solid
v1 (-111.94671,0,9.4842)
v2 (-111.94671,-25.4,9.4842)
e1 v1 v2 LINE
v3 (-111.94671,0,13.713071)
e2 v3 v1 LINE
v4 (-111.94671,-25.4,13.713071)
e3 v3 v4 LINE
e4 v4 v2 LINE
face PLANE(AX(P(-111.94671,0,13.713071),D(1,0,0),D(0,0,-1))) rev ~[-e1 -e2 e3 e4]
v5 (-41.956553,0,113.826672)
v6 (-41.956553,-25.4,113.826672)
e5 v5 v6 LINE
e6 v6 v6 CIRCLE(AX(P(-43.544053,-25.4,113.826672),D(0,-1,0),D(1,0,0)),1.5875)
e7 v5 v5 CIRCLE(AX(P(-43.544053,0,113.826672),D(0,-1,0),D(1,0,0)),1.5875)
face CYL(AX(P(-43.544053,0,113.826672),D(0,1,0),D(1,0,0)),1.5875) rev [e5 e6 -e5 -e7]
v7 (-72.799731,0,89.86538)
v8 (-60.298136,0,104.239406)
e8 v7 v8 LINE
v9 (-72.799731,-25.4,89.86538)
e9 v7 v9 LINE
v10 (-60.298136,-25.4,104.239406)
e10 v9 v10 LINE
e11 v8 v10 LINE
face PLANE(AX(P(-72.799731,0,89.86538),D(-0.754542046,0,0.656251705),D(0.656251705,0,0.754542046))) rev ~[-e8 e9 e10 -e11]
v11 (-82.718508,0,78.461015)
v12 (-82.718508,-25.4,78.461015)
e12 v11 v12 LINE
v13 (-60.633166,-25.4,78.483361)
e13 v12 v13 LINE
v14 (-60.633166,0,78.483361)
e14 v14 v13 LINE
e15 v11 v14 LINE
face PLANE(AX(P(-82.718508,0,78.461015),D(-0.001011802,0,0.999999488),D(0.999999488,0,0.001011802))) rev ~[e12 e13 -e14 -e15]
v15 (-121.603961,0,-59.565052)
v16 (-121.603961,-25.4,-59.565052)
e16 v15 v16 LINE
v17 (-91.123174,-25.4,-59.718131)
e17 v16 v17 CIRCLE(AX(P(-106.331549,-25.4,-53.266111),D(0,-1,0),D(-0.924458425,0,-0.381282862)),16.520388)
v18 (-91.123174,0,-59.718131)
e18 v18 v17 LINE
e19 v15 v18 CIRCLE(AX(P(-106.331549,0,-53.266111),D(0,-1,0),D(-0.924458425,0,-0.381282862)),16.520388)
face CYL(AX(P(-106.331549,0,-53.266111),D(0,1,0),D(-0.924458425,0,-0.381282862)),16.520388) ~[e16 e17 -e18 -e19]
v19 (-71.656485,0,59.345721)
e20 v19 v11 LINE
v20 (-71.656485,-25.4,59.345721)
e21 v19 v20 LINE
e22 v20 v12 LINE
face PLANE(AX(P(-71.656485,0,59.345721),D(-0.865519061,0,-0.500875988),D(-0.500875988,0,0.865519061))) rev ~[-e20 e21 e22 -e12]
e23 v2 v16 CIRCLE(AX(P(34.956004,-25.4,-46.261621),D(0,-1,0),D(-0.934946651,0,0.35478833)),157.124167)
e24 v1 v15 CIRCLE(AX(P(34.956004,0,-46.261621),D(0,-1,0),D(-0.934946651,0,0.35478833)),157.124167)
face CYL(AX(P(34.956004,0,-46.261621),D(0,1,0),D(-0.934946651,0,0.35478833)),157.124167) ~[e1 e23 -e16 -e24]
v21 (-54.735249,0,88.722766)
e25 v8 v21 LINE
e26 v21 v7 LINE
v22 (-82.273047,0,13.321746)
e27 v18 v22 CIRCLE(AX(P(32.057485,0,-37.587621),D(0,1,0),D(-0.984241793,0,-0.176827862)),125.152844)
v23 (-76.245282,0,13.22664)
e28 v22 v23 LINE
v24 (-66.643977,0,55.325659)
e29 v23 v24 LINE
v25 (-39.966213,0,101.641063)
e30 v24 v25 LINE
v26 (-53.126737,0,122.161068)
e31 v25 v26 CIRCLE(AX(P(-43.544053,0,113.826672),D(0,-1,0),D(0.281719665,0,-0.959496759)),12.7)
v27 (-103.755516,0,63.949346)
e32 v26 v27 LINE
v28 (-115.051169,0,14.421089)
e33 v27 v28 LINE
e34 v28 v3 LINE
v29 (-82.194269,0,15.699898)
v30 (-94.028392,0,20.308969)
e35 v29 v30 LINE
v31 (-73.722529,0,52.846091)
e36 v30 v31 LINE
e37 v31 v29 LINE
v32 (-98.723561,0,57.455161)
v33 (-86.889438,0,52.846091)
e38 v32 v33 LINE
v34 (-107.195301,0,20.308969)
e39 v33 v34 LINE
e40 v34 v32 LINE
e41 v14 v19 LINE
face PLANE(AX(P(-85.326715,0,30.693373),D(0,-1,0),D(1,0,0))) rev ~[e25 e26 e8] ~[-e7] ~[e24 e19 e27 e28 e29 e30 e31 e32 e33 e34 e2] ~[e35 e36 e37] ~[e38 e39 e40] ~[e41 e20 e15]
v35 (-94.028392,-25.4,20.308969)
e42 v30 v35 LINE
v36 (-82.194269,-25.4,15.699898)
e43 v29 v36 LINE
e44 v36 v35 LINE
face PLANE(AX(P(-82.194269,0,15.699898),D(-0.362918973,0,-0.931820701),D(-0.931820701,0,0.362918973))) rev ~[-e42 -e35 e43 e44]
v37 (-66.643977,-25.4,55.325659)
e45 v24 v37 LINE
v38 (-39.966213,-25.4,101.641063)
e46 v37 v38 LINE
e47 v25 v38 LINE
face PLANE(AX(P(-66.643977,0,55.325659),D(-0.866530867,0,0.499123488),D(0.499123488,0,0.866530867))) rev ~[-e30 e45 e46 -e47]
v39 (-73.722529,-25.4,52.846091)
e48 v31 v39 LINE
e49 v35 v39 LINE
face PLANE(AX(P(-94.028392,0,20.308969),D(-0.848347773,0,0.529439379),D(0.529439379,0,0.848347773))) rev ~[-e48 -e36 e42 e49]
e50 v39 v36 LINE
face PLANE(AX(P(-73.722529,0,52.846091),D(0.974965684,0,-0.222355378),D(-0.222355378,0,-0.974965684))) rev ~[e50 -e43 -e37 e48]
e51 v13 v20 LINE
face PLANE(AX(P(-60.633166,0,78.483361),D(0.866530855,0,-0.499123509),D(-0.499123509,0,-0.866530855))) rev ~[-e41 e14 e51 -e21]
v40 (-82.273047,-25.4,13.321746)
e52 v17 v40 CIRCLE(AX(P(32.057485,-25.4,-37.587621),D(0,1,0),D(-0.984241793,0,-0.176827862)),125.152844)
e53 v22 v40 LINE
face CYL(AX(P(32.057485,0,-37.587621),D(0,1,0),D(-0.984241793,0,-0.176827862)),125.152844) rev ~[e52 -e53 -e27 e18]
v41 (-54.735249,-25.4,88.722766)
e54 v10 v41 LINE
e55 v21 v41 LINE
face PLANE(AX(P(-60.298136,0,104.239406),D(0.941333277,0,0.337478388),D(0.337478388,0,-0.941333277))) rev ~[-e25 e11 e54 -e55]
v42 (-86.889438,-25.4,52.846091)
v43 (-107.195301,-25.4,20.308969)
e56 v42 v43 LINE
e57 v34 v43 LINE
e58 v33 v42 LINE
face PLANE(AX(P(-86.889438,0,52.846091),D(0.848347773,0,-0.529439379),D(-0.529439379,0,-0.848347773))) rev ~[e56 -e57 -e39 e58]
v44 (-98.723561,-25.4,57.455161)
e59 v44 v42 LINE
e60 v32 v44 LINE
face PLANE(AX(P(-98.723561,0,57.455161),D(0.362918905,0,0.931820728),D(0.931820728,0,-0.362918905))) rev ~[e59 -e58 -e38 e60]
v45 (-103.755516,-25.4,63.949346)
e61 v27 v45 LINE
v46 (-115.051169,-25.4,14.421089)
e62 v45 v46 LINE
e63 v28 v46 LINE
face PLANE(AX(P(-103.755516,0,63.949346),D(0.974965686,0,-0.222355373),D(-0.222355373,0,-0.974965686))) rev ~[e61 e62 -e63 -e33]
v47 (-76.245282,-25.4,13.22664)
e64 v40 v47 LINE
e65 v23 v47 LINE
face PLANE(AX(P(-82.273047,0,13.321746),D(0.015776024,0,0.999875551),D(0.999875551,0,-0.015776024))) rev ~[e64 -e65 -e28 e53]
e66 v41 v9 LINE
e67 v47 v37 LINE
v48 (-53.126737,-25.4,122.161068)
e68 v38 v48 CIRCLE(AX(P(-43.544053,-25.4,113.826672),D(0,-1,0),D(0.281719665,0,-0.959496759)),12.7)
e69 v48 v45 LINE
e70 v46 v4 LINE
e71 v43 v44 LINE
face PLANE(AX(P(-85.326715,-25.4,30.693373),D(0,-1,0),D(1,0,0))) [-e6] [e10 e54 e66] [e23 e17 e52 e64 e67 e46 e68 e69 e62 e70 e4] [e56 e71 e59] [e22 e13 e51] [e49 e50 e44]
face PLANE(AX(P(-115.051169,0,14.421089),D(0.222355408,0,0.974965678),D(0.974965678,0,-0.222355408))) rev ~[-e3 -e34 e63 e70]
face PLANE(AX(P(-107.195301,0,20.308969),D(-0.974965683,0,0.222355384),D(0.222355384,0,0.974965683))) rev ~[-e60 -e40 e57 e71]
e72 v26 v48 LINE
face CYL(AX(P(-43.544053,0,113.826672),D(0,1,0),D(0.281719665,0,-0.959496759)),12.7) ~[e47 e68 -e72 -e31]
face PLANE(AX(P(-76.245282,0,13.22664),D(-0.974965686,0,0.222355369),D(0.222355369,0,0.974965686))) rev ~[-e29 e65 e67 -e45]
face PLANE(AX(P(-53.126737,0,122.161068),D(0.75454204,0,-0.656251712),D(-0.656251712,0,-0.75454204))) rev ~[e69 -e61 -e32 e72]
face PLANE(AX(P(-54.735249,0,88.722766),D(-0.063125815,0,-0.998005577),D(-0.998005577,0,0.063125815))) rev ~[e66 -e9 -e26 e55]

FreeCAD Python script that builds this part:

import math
import FreeCAD as App
import Part
import Sketcher
from FreeCAD import Vector
Q = App.Units.Quantity

doc = App.newDocument("Part")
body = doc.addObject("PartDesign::Body", "Body")

sketch1 = body.newObject("Sketcher::SketchObject", "Sketch")
sketch1.AttachmentSupport = (doc.getObject("XZ_Plane"), [""])
sketch1.MapMode = "FlatFace"
sketch1.addGeometry(Part.LineSegment(Vector(-66.643977, 55.325659, 0), Vector(-39.966213, 101.641063, 0)), False)
sketch1.addGeometry(Part.ArcOfCircle(Part.Circle(Vector(-43.544053, 113.826672, 0), Vector(0, 0, 1), 12.7), math.radians(-73.637133), math.radians(138.985373)), False)
sketch1.addGeometry(Part.LineSegment(Vector(-53.126737, 122.161068, 0), Vector(-103.755516, 63.949346, 0)), False)
sketch1.addGeometry(Part.LineSegment(Vector(-103.755516, 63.949346, 0), Vector(-115.051169, 14.421089, 0)), False)
sketch1.addGeometry(Part.LineSegment(Vector(-115.051169, 14.421089, 0), Vector(-111.94671, 13.713071, 0)), False)
sketch1.addGeometry(Part.LineSegment(Vector(-111.94671, 13.713071, 0), Vector(-111.94671, 9.4842, 0)), False)
sketch1.addGeometry(Part.ArcOfCircle(Part.Circle(Vector(34.956004, -46.261621, 0), Vector(0, 0, 1), 157.124167), math.radians(159.219528), math.radians(184.856949)), False)
sketch1.addGeometry(Part.ArcOfCircle(Part.Circle(Vector(-106.331549, -53.266111, 0), Vector(0, 0, 1), 16.520388), math.radians(-157.586831), math.radians(-22.98866)), False)
sketch1.addGeometry(Part.ArcOfCircle(Part.Circle(Vector(32.057485, -37.587621, 0), Vector(0, 0, 1), 125.152844), math.radians(155.997434), math.radians(190.185046)), False)
sketch1.addGeometry(Part.LineSegment(Vector(-82.273047, 13.321746, 0), Vector(-76.245282, 13.22664, 0)), False)
sketch1.addGeometry(Part.LineSegment(Vector(-76.245282, 13.22664, 0), Vector(-66.643977, 55.325659, 0)), False)
sketch1.addGeometry(Part.LineSegment(Vector(-86.889438, 52.846091, 0), Vector(-107.195301, 20.308969, 0)), False)
sketch1.addGeometry(Part.LineSegment(Vector(-107.195301, 20.308969, 0), Vector(-98.723561, 57.455161, 0)), False)
sketch1.addGeometry(Part.LineSegment(Vector(-98.723561, 57.455161, 0), Vector(-86.889438, 52.846091, 0)), False)
sketch1.addGeometry(Part.LineSegment(Vector(-82.194269, 15.699898, 0), Vector(-94.028392, 20.308969, 0)), False)
sketch1.addGeometry(Part.LineSegment(Vector(-94.028392, 20.308969, 0), Vector(-73.722529, 52.846091, 0)), False)
sketch1.addGeometry(Part.LineSegment(Vector(-73.722529, 52.846091, 0), Vector(-82.194269, 15.699898, 0)), False)
sketch1.addGeometry(Part.LineSegment(Vector(-71.656485, 59.345721, 0), Vector(-82.718508, 78.461015, 0)), False)
sketch1.addGeometry(Part.LineSegment(Vector(-82.718508, 78.461015, 0), Vector(-60.633166, 78.483361, 0)), False)
sketch1.addGeometry(Part.LineSegment(Vector(-60.633166, 78.483361, 0), Vector(-71.656485, 59.345721, 0)), False)
sketch1.addGeometry(Part.LineSegment(Vector(-54.735249, 88.722766, 0), Vector(-72.799731, 89.86538, 0)), False)
sketch1.addGeometry(Part.LineSegment(Vector(-72.799731, 89.86538, 0), Vector(-60.298136, 104.239406, 0)), False)
sketch1.addGeometry(Part.LineSegment(Vector(-60.298136, 104.239406, 0), Vector(-54.735249, 88.722766, 0)), False)
sketch1.addGeometry(Part.Circle(Vector(-43.544053, 113.826672, 0), Vector(0, 0, 1), 1.5875), False)
sketch1.addConstraint(Sketcher.Constraint("Coincident", 0, 2, 1, 1))
sketch1.addConstraint(Sketcher.Constraint("Tangent", 1, 2, 2, 1))
sketch1.addConstraint(Sketcher.Constraint("Coincident", 2, 2, 3, 1))
sketch1.addConstraint(Sketcher.Constraint("Coincident", 3, 2, 4, 1))
sketch1.addConstraint(Sketcher.Constraint("Coincident", 4, 2, 5, 1))
sketch1.addConstraint(Sketcher.Constraint("Coincident", 5, 2, 6, 1))
sketch1.addConstraint(Sketcher.Constraint("Coincident", 6, 2, 7, 1))
sketch1.addConstraint(Sketcher.Constraint("Coincident", 7, 2, 8, 2))
sketch1.addConstraint(Sketcher.Constraint("Coincident", 8, 1, 9, 1))
sketch1.addConstraint(Sketcher.Constraint("Coincident", 9, 2, 10, 1))
sketch1.addConstraint(Sketcher.Constraint("Coincident", 10, 2, 0, 1))
sketch1.addConstraint(Sketcher.Constraint("Coincident", 11, 2, 12, 1))
sketch1.addConstraint(Sketcher.Constraint("Coincident", 12, 2, 13, 1))
sketch1.addConstraint(Sketcher.Constraint("Coincident", 13, 2, 11, 1))
sketch1.addConstraint(Sketcher.Constraint("Coincident", 14, 2, 15, 1))
sketch1.addConstraint(Sketcher.Constraint("Coincident", 15, 2, 16, 1))
sketch1.addConstraint(Sketcher.Constraint("Coincident", 16, 2, 14, 1))
sketch1.addConstraint(Sketcher.Constraint("Coincident", 17, 2, 18, 1))
sketch1.addConstraint(Sketcher.Constraint("Coincident", 18, 2, 19, 1))
sketch1.addConstraint(Sketcher.Constraint("Coincident", 19, 2, 17, 1))
sketch1.addConstraint(Sketcher.Constraint("Coincident", 20, 2, 21, 1))
sketch1.addConstraint(Sketcher.Constraint("Coincident", 21, 2, 22, 1))
sketch1.addConstraint(Sketcher.Constraint("Coincident", 22, 2, 20, 1))
sketch1.addConstraint(Sketcher.Constraint("Vertical", 5))
sketch1.addConstraint(Sketcher.Constraint("Coincident", 23, 3, 1, 3))
sketch1.addConstraint(Sketcher.Constraint("Perpendicular", 3, 4))
sketch1.addConstraint(Sketcher.Constraint("Perpendicular", 4, 10))
sketch1.addConstraint(Sketcher.Constraint("Parallel", 10, 12))
sketch1.addConstraint(Sketcher.Constraint("Parallel", 13, 14))
sketch1.addConstraint(Sketcher.Constraint("Parallel", 11, 15))
sketch1.addConstraint(Sketcher.Constraint("Parallel", 12, 16))
sketch1.addConstraint(Sketcher.Constraint("Parallel", 0, 19))
sketch1.addConstraint(Sketcher.Constraint("Parallel", 2, 21))
sketch1.addConstraint(Sketcher.Constraint("Horizontal", 11, 2, 14, 2))
sketch1.addConstraint(Sketcher.Constraint("Horizontal", 13, 2, 15, 2))
sketch1.addConstraint(Sketcher.Constraint("Equal", 17, 18))
sketch1.addConstraint(Sketcher.Constraint("Equal", 18, 19))
sketch1.addConstraint(Sketcher.Constraint("Radius", 1, Q("0.5 in")))
sketch1.addConstraint(Sketcher.Constraint("Distance", 3, Q("2 in")))
sketch1.addConstraint(Sketcher.Constraint("Diameter", 23, Q("0.125 in")))
sketch1.addConstraint(Sketcher.Constraint("Distance", 10, Q("1.7 in")))
sketch1.addConstraint(Sketcher.Constraint("Distance", 12, Q("1.5 in")))
sketch1.addConstraint(Sketcher.Constraint("Distance", 13, Q("0.5 in")))
sketch1.addConstraint(Sketcher.Constraint("Distance", 21, Q("0.75 in")))
sketch1.addConstraint(Sketcher.Constraint("Radius", 7, 16.520388))
sketch1.addConstraint(Sketcher.Constraint("Radius", 6, 157.124167))
sketch1.addConstraint(Sketcher.Constraint("Radius", 8, 125.152844))
sketch1.addConstraint(Sketcher.Constraint("DistanceY", 2, 2, 1, 2, Q("2.2918001 in")))
sketch1.addConstraint(Sketcher.Constraint("DistanceX", 20, 2, 22, 2, Q("0.7112001 in")))
sketch1.addConstraint(Sketcher.Constraint("DistanceY", 5, 2, 5, 1, 4.228871))
sketch1.addConstraint(Sketcher.Constraint("DistanceY", -1, 1, 5, 2, 9.4842))
sketch1.addConstraint(Sketcher.Constraint("DistanceX", 11, 2, -1, 1, 107.195301))
sketch1.addConstraint(Sketcher.Constraint("DistanceY", 6, 3, 8, 3, 8.674))
sketch1.addConstraint(Sketcher.Constraint("DistanceX", 0, 2, 8, 3, 72.023698))
sketch1.addConstraint(Sketcher.Constraint("DistanceY", 7, 3, 3, 2, 67.6872))
sketch1.addConstraint(Sketcher.Constraint("DistanceY", 4, 2, 1, 3, 100.113601))
sketch1.addConstraint(Sketcher.Constraint("DistanceY", 6, 2, 2, 2, 123.514398))
sketch1.addConstraint(Sketcher.Constraint("DistanceY", 7, 2, 4, 2, 73.431202))
sketch1.addConstraint(Sketcher.Constraint("DistanceY", 8, 1, 2, 2, 50.6276))
sketch1.addConstraint(Sketcher.Constraint("DistanceX", 7, 3, 8, 1, 24.058502))
sketch1.addConstraint(Sketcher.Constraint("DistanceY", 4, 2, 11, 2, 6.595898))
sketch1.addConstraint(Sketcher.Constraint("DistanceY", 10, 2, 12, 2, 2.129502))
sketch1.addConstraint(Sketcher.Constraint("DistanceX", 21, 2, 1, 2, 7.171399))
sketch1.addConstraint(Sketcher.Constraint("Distance", 11, 38.353518))
sketch1.addConstraint(Sketcher.Constraint("DistanceY", 6, 3, -1, 1, 46.261621))
sketch1.addConstraint(Sketcher.Constraint("DistanceX", 7, 3, -1, 1, 106.331549))
sketch1.addConstraint(Sketcher.Constraint("DistanceY", 7, 3, -1, 1, 53.266111))
sketch1.addConstraint(Sketcher.Constraint("DistanceX", 14, 2, -1, 1, 94.028392))
sketch1.addConstraint(Sketcher.Constraint("DistanceX", 17, 2, -1, 1, 82.718508))
sketch1.addConstraint(Sketcher.Constraint("DistanceY", -1, 1, 18, 2, 78.483361))
sketch1.addConstraint(Sketcher.Constraint("DistanceY", -1, 1, 19, 2, 59.345721))
sketch1.addConstraint(Sketcher.Constraint("DistanceY", -1, 1, 20, 2, 89.86538))
sketch1.addConstraint(Sketcher.Constraint("DistanceX", 2, 2, 10, 2, 37.111539))
sketch1.addConstraint(Sketcher.Constraint("DistanceY", 22, 2, 21, 2, 15.51664))
pad1 = body.newObject("PartDesign::Pad", "Pad")
pad1.Profile = sketch1
pad1.Length = Q("1 in")

doc.recompute()
